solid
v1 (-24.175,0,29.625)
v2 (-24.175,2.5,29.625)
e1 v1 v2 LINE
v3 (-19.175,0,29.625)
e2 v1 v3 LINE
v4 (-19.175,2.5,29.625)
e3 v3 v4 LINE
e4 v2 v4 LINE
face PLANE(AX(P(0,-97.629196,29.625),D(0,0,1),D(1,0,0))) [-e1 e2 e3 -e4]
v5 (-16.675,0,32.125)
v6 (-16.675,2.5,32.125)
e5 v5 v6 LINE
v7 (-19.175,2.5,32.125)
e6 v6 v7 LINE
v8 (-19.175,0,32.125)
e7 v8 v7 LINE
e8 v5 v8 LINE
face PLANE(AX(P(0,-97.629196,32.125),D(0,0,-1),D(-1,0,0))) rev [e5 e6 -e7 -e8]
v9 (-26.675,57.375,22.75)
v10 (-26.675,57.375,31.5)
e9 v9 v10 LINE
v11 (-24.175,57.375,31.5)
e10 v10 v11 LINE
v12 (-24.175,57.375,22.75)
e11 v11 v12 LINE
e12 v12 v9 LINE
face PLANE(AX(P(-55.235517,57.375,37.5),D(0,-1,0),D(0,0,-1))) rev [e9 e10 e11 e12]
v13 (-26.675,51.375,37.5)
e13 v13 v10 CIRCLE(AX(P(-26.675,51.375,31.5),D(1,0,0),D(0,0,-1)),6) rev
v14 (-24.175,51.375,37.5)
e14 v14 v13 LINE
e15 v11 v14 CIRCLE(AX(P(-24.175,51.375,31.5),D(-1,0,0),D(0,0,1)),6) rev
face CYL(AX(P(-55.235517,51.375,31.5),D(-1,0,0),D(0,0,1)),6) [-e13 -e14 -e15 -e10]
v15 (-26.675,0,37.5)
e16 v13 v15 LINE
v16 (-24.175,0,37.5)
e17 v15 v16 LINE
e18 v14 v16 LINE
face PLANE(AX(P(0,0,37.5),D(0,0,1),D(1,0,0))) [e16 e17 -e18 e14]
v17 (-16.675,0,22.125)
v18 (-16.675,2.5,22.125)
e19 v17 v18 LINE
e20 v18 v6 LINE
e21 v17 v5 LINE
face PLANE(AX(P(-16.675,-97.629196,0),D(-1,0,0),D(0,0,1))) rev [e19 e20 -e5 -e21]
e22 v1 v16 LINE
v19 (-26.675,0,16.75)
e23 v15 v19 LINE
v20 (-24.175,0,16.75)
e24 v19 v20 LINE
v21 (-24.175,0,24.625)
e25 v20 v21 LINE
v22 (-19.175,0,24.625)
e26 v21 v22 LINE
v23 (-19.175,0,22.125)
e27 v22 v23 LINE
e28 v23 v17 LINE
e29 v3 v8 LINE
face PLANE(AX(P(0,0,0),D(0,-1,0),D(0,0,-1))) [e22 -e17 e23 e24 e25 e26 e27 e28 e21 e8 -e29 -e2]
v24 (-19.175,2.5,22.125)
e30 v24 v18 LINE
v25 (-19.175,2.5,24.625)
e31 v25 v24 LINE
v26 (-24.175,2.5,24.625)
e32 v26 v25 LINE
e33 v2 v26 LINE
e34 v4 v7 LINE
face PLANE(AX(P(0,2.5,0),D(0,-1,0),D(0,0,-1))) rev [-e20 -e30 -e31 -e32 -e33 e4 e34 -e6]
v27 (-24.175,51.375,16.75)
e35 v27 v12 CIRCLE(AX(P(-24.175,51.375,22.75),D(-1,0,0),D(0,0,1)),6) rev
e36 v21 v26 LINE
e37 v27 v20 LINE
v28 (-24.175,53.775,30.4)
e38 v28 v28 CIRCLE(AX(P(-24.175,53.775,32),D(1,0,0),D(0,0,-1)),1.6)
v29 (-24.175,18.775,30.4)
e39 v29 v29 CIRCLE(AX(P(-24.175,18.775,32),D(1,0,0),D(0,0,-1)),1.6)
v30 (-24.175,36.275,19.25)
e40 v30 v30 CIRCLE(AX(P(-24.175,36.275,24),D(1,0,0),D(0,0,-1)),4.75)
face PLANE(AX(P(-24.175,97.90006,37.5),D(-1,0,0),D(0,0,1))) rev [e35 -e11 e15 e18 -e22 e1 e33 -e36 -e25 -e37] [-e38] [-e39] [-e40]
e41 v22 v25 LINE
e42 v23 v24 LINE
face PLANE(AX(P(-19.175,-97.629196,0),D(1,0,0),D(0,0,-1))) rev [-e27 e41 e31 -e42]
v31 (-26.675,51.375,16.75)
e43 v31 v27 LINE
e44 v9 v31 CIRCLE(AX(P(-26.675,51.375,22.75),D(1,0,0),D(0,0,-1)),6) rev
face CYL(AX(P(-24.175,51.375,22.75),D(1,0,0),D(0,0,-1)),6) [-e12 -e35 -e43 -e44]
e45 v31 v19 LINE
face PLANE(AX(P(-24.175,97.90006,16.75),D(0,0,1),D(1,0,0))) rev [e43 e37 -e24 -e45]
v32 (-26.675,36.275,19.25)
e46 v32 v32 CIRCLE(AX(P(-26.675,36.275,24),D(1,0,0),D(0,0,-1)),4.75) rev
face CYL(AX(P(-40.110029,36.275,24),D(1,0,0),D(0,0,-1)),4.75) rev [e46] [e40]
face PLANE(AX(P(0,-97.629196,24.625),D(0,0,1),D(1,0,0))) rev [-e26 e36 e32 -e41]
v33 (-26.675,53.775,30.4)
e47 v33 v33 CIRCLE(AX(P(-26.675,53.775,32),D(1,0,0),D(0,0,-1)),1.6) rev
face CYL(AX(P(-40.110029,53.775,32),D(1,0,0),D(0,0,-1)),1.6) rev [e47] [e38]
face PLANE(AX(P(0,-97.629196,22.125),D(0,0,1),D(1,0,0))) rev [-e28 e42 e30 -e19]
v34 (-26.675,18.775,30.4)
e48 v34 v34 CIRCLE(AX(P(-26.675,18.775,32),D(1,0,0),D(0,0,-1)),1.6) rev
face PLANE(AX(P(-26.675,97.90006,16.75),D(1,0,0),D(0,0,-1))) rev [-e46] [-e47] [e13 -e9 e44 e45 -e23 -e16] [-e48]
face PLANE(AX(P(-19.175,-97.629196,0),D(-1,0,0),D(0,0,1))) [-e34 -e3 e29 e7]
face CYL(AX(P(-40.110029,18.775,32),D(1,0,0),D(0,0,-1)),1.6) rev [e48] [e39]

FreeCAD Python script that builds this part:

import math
import FreeCAD as App
import Part
import Sketcher
Q = App.Units.Quantity


def edges_at(feature, points):
    """Names of the edges that pass closest to the given points."""
    edges = feature.Shape.Edges
    near = lambda p: min(range(len(edges)), key=lambda i: edges[i].distToShape(Part.Vertex(*p))[0])
    return sorted({f"Edge{near(p) + 1}" for p in points})


def add_polygon(sketch, points):
    """Adds a closed chain of lines whose ends are joined by coincident constraints."""
    first, n = sketch.GeometryCount, len(points)
    for a, b in zip(points, points[1:] + points[:1]):
        sketch.addGeometry(Part.LineSegment(App.Vector(*a, 0), App.Vector(*b, 0)), False)
    for i in range(n):
        sketch.addConstraint(Sketcher.Constraint("Coincident", first + i, 2, first + (i + 1) % n, 1))

doc = App.newDocument("Part")
body = doc.addObject("PartDesign::Body", "Body")

# Sketch on XZ plane
sketch1 = body.newObject("Sketcher::SketchObject", "Sketch")
sketch1.AttachmentSupport = (doc.getObject("XZ_Plane"), [""])
sketch1.MapMode = "FlatFace"
add_polygon(sketch1, [(-40, -30), (-40, 30), (40, 30), (40, -30)])  # lines 0-3
sketch1.addConstraint([
    Sketcher.Constraint("Vertical", 0),
    Sketcher.Constraint("Horizontal", 1),
    Sketcher.Constraint("Vertical", 2),
    Sketcher.Constraint("Horizontal", 3),
    Sketcher.Constraint("Symmetric", 0, 2, 2, 2, -1, 1),
    Sketcher.Constraint("DistanceX", 1, 1, 1, 2, Q("80 mm")),
    Sketcher.Constraint("DistanceY", 0, 1, 0, 2, Q("60 mm")),
])
pad1 = body.newObject("PartDesign::Pad", "Pad")
pad1.Profile = sketch1
pad1.Length = 2.5
pad1.Reversed = True

# Sketch on XZ plane
sketch2 = body.newObject("Sketcher::SketchObject", "Sketch001")
sketch2.AttachmentSupport = (doc.getObject("XZ_Plane"), [""])
sketch2.MapMode = "FlatFace"
add_polygon(sketch2, [(16.2, 18), (-6.2, 18), (-6.2, 30), (16.2, 30)])  # lines 0-3
sketch2.addGeometry(Part.Circle(App.Vector(-8.6, 24, 0), App.Vector(0, 0, 1), 1.6), False)  # 4
sketch2.addGeometry(Part.Circle(App.Vector(18.6, 24, 0), App.Vector(0, 0, 1), 1.6), False)  # 5
sketch2.addConstraint([
    Sketcher.Constraint("Horizontal", 0),
    Sketcher.Constraint("Vertical", 1),
    Sketcher.Constraint("Horizontal", 2),
    Sketcher.Constraint("Vertical", 3),
    Sketcher.Constraint("Equal", 4, 5),
    Sketcher.Constraint("Horizontal", 4, 3, 5, 3),
    Sketcher.Constraint("Diameter", 4, Q("3.2 mm")),
    Sketcher.Constraint("DistanceY", 1, 1, 1, 2, Q("12 mm")),
    Sketcher.Constraint("DistanceX", 0, 2, 0, 1, Q("22.5 mm")),
    Sketcher.Constraint("DistanceY", -1, 1, 4, 3, Q("24 mm")),
    Sketcher.Constraint("DistanceY", -1, 1, 0, 2, Q("18 mm")),
    Sketcher.Constraint("DistanceX", 0, 2, -1, 1, Q("6.25 mm")),
    Sketcher.Constraint("DistanceX", 4, 3, 5, 3, Q("27.25 mm")),
    Sketcher.Constraint("DistanceX", 4, 3, -1, 1, Q("8.625 mm")),
])
pocket1 = body.newObject("PartDesign::Pocket", "Pocket")
pocket1.Profile = sketch2
pocket1.Type = "ThroughAll"
pocket1.Midplane = True

# Sketch on XZ plane
sketch3 = body.newObject("Sketcher::SketchObject", "Sketch002")
sketch3.AttachmentSupport = (doc.getObject("XZ_Plane"), [""])
sketch3.MapMode = "FlatFace"
sketch3.AttachmentOffset = App.Placement(App.Vector(0, 0, -2.5), App.Rotation())
add_polygon(sketch3, [(-40, 9.5), (-40, 30), (-37.5, 30), (-37.5, 9.5)])  # lines 0-3
sketch3.addConstraint([
    Sketcher.Constraint("Vertical", 0),
    Sketcher.Constraint("Horizontal", 1),
    Sketcher.Constraint("Vertical", 2),
    Sketcher.Constraint("Horizontal", 3),
    Sketcher.Constraint("DistanceX", 1, 1, 1, 2, Q("2.5 mm")),
    Sketcher.Constraint("DistanceY", 0, 1, 0, 2, Q("20.5 mm")),
    Sketcher.Constraint("DistanceX", 0, 2, -1, 1, Q("40 mm")),
    Sketcher.Constraint("DistanceY", -1, 1, 0, 2, Q("30 mm")),
])
pad2 = body.newObject("PartDesign::Pad", "Pad001")
pad2.Profile = sketch3
pad2.Length = 66.5
pad2.Reversed = True

# Sketch on XZ plane
sketch4 = body.newObject("Sketcher::SketchObject", "Sketch003")
sketch4.AttachmentSupport = (doc.getObject("XZ_Plane"), [""])
sketch4.MapMode = "FlatFace"
sketch4.AttachmentOffset = App.Placement(App.Vector(0, 0, -2.5), App.Rotation())
add_polygon(sketch4, [(-40, 30), (-40, 36), (40, 36), (40, 30)])  # lines 0-3
sketch4.addConstraint([
    Sketcher.Constraint("Vertical", 0),
    Sketcher.Constraint("Horizontal", 1),
    Sketcher.Constraint("Vertical", 2),
    Sketcher.Constraint("Horizontal", 3),
    Sketcher.Constraint("DistanceX", 1, 1, 1, 2, Q("80 mm")),
    Sketcher.Constraint("DistanceY", 0, 1, 0, 2, Q("5.5 mm")),
    Sketcher.Constraint("DistanceX", 0, 2, -1, 1, Q("40 mm")),
    Sketcher.Constraint("DistanceY", -1, 1, 2, 2, Q("30 mm")),
])
pad3 = body.newObject("PartDesign::Pad", "Pad002")
pad3.Profile = sketch4
pad3.Length = 2.5

# Sketch on XZ plane
sketch5 = body.newObject("Sketcher::SketchObject", "Sketch004")
sketch5.AttachmentSupport = (doc.getObject("XZ_Plane"), [""])
sketch5.MapMode = "FlatFace"
sketch5.AttachmentOffset = App.Placement(App.Vector(0, 0, -2.5), App.Rotation())
add_polygon(sketch5, [(-40, 30), (-40, 35.5), (-37.5, 35.5), (-37.5, 30)])  # lines 0-3
sketch5.addConstraint([
    Sketcher.Constraint("Vertical", 0),
    Sketcher.Constraint("Horizontal", 1),
    Sketcher.Constraint("Vertical", 2),
    Sketcher.Constraint("Horizontal", 3),
    Sketcher.Constraint("DistanceX", 1, 1, 1, 2, Q("2.5 mm")),
    Sketcher.Constraint("DistanceY", 0, 1, 0, 2, Q("5.5 mm")),
    Sketcher.Constraint("DistanceX", 0, 2, -1, 1, Q("40 mm")),
    Sketcher.Constraint("DistanceY", -1, 1, 2, 2, Q("30 mm")),
])
pad4 = body.newObject("PartDesign::Pad", "Pad003")
pad4.Profile = sketch5
pad4.Length = 66.5
pad4.Reversed = True

# Sketch on XZ plane
sketch6 = body.newObject("Sketcher::SketchObject", "Sketch005")
sketch6.AttachmentSupport = (doc.getObject("XZ_Plane"), [""])
sketch6.MapMode = "FlatFace"
sketch6.AttachmentOffset = App.Placement(App.Vector(0, 0, -69), App.Rotation())
add_polygon(sketch6, [(-40, 9.5), (-40, 15), (-37.5, 15), (-37.5, 9.5)])  # lines 0-3
sketch6.addConstraint([
    Sketcher.Constraint("Vertical", 0),
    Sketcher.Constraint("Horizontal", 1),
    Sketcher.Constraint("Vertical", 2),
    Sketcher.Constraint("Horizontal", 3),
    Sketcher.Constraint("DistanceX", 1, 1, 1, 2, Q("2.5 mm")),
    Sketcher.Constraint("DistanceY", 0, 1, 0, 2, Q("5.5 mm")),
    Sketcher.Constraint("DistanceX", 0, 2, -1, 1, Q("40 mm")),
    Sketcher.Constraint("DistanceY", -1, 1, 0, 2, Q("15 mm")),
])
pocket2 = body.newObject("PartDesign::Pocket", "Pocket001")
pocket2.Profile = sketch6
pocket2.Length = 66.5
pocket2.Reversed = True

# Sketch on XZ plane
sketch7 = body.newObject("Sketcher::SketchObject", "Sketch006")
sketch7.AttachmentSupport = (doc.getObject("XZ_Plane"), [""])
sketch7.MapMode = "FlatFace"
sketch7.AttachmentOffset = App.Placement(App.Vector(0, 0, -2.5), App.Rotation())
add_polygon(sketch7, [(-40, 12.5), (-40, 15), (-37.5, 15), (-37.5, 12.5)])  # lines 0-3
sketch7.addConstraint([
    Sketcher.Constraint("Vertical", 0),
    Sketcher.Constraint("Horizontal", 1),
    Sketcher.Constraint("Vertical", 2),
    Sketcher.Constraint("Horizontal", 3),
    Sketcher.Constraint("Equal", 3, 0),
    Sketcher.Constraint("DistanceX", 1, 1, 1, 2, Q("2.5 mm")),
    Sketcher.Constraint("DistanceX", 0, 2, -1, 1, Q("40 mm")),
    Sketcher.Constraint("DistanceY", -1, 1, 0, 2, Q("15 mm")),
])
pad5 = body.newObject("PartDesign::Pad", "Pad004")
pad5.Profile = sketch7
pad5.Length = 66.5
pad5.Reversed = True

# Sketch on YZ plane
sketch8 = body.newObject("Sketcher::SketchObject", "Sketch007")
sketch8.AttachmentSupport = (doc.getObject("YZ_Plane"), [""])
sketch8.MapMode = "FlatFace"
sketch8.AttachmentOffset = App.Placement(App.Vector(0, 0, -37.5), App.Rotation())
sketch8.addGeometry(Part.Circle(App.Vector(54, 24, 0), App.Vector(0, 0, 1), 4.8), False)
sketch8.addConstraint([
    Sketcher.Constraint("Diameter", 0, Q("9.5 mm")),
    Sketcher.Constraint("DistanceX", -1, 1, 0, 3, Q("54 mm")),
    Sketcher.Constraint("DistanceY", -1, 1, 0, 3, Q("24 mm")),
])
pocket3 = body.newObject("PartDesign::Pocket", "Pocket002")
pocket3.Profile = sketch8
pocket3.Length = 2.5

# Sketch on XZ plane
sketch9 = body.newObject("Sketcher::SketchObject", "Sketch008")
sketch9.AttachmentSupport = (doc.getObject("XZ_Plane"), [""])
sketch9.MapMode = "FlatFace"
sketch9.AttachmentOffset = App.Placement(App.Vector(0, 0, -69), App.Rotation())
add_polygon(sketch9, [(-40, 12.5), (-40, 35.5), (-37.5, 35.5), (-37.5, 12.5)])  # lines 0-3
sketch9.addConstraint([
    Sketcher.Constraint("Vertical", 0),
    Sketcher.Constraint("Horizontal", 1),
    Sketcher.Constraint("Vertical", 2),
    Sketcher.Constraint("Horizontal", 3),
    Sketcher.Constraint("DistanceY", 0, 1, 0, 2, Q("23 mm")),
    Sketcher.Constraint("DistanceX", 1, 1, 1, 2, Q("2.5 mm")),
    Sketcher.Constraint("DistanceX", 0, 2, -1, 1, Q("40 mm")),
    Sketcher.Constraint("DistanceY", -1, 1, 0, 2, Q("35.5 mm")),
])
pad6 = body.newObject("PartDesign::Pad", "Pad005")
pad6.Profile = sketch9
pad6.Length = 8
pad6.Reversed = True

# Sketch on XY plane
sketch10 = body.newObject("Sketcher::SketchObject", "Sketch009")
sketch10.AttachmentSupport = (doc.getObject("XY_Plane"), [""])
sketch10.MapMode = "FlatFace"
sketch10.AttachmentOffset = App.Placement(App.Vector(0, 0, 35.5), App.Rotation())
add_polygon(sketch10, [(-40, 77), (-40, 2.5), (-37.5, 2.5), (-37.5, 77)])  # lines 0-3
sketch10.addConstraint([
    Sketcher.Constraint("Vertical", 0),
    Sketcher.Constraint("Horizontal", 1),
    Sketcher.Constraint("Vertical", 2),
    Sketcher.Constraint("Horizontal", 3),
    Sketcher.Constraint("DistanceX", 1, 1, 1, 2, Q("2.5 mm")),
    Sketcher.Constraint("DistanceY", 0, 2, 0, 1, Q("74.5 mm")),
    Sketcher.Constraint("DistanceX", 0, 2, -1, 1, Q("40 mm")),
    Sketcher.Constraint("DistanceY", -1, 1, 2, 2, Q("77 mm")),
])
pad7 = body.newObject("PartDesign::Pad", "Pad006")
pad7.Profile = sketch10
pad7.Length = 2

# Sketch on YZ plane
sketch11 = body.newObject("Sketcher::SketchObject", "Sketch010")
sketch11.AttachmentSupport = (doc.getObject("YZ_Plane"), [""])
sketch11.MapMode = "FlatFace"
sketch11.AttachmentOffset = App.Placement(App.Vector(0, 0, -40), App.Rotation())
sketch11.addGeometry([
    Part.Circle(App.Vector(36.5, 32, 0), App.Vector(0, 0, 1), 1.6),
    Part.Circle(App.Vector(71.5, 32, 0), App.Vector(0, 0, 1), 1.6),
], False)
sketch11.addConstraint([
    Sketcher.Constraint("Equal", 0, 1),
    Sketcher.Constraint("Horizontal", 0, 3, 1, 3),
    Sketcher.Constraint("Diameter", 0, Q("3.2 mm")),
    Sketcher.Constraint("DistanceY", -1, 1, 0, 3, Q("32 mm")),
    Sketcher.Constraint("DistanceX", 0, 3, 1, 3, Q("35 mm")),
    Sketcher.Constraint("DistanceX", -1, 1, 0, 3, Q("36.5 mm")),
])
pocket4 = body.newObject("PartDesign::Pocket", "Pocket003")
pocket4.Profile = sketch11
pocket4.Length = 2.5
pocket4.Reversed = True

# Sketch on XY plane
sketch12 = body.newObject("Sketcher::SketchObject", "Sketch011")
sketch12.AttachmentSupport = (doc.getObject("XY_Plane"), [""])
sketch12.MapMode = "FlatFace"
sketch12.AttachmentOffset = App.Placement(App.Vector(0, 0, 35.5), App.Rotation())
add_polygon(sketch12, [(-40, 2.5), (-40, 0), (40, 0), (40, 2.5)])  # lines 0-3
sketch12.addConstraint([
    Sketcher.Constraint("Vertical", 0),
    Sketcher.Constraint("Horizontal", 1),
    Sketcher.Constraint("Vertical", 2),
    Sketcher.Constraint("Horizontal", 3),
    Sketcher.Constraint("Symmetric", 0, 2, 1, 2, -1, 1),
    Sketcher.Constraint("DistanceX", 1, 1, 1, 2, Q("80 mm")),
    Sketcher.Constraint("DistanceY", 0, 2, 0, 1, Q("2.5 mm")),
])
pad8 = body.newObject("PartDesign::Pad", "Pad007")
pad8.Profile = sketch12
pad8.Length = 2

# Sketch on YZ plane
sketch13 = body.newObject("Sketcher::SketchObject", "Sketch012")
sketch13.AttachmentSupport = (doc.getObject("YZ_Plane"), [""])
sketch13.MapMode = "FlatFace"
sketch13.AttachmentOffset = App.Placement(App.Vector(0, 0, -37.5), App.Rotation())
add_polygon(sketch13, [(77, 16.8), (2.5, 16.8), (2.5, 12.5), (77, 12.5)])  # lines 0-3
sketch13.addConstraint([
    Sketcher.Constraint("Horizontal", 0),
    Sketcher.Constraint("Vertical", 1),
    Sketcher.Constraint("Horizontal", 2),
    Sketcher.Constraint("Vertical", 3),
    Sketcher.Constraint("DistanceX", 0, 2, 0, 1, Q("74.5 mm")),
    Sketcher.Constraint("DistanceX", -1, 1, 2, 2, Q("77 mm")),
    Sketcher.Constraint("DistanceY", 1, 2, 1, 1, Q("4.25 mm")),
    Sketcher.Constraint("DistanceY", -1, 1, 1, 2, Q("12.5 mm")),
])
pocket5 = body.newObject("PartDesign::Pocket", "Pocket004")
pocket5.Profile = sketch13
pocket5.Length = 2.5
doc.recompute()

fillet = body.newObject("PartDesign::Fillet", "Fillet")
fillet.Base = (pocket5, edges_at(pocket5, [(-38.75, 77, 37.5), (-38.75, 77, 16.75)]))
fillet.Radius = 5

# Sketch on XZ plane
sketch14 = body.newObject("Sketcher::SketchObject", "Sketch013")
sketch14.AttachmentSupport = (doc.getObject("XZ_Plane"), [""])
sketch14.MapMode = "FlatFace"
sketch14.AttachmentOffset = App.Placement(App.Vector(0, 0, -2.5), App.Rotation())
add_polygon(sketch14, [(40, -30), (40, 38), (55, 38), (55, -30)])  # lines 0-3
sketch14.addConstraint([
    Sketcher.Constraint("Vertical", 0),
    Sketcher.Constraint("Horizontal", 1),
    Sketcher.Constraint("Vertical", 2),
    Sketcher.Constraint("Horizontal", 3),
    Sketcher.Constraint("DistanceY", 0, 1, 0, 2, Q("67.5 mm")),
    Sketcher.Constraint("DistanceX", -1, 1, 0, 2, Q("40 mm")),
    Sketcher.Constraint("DistanceY", 2, 2, -1, 1, Q("30 mm")),
    Sketcher.Constraint("DistanceX", 1, 1, 1, 2, Q("15.225 mm")),
])
pad9 = body.newObject("PartDesign::Pad", "Pad008")
pad9.Profile = sketch14
pad9.Length = 2.5

# Sketch on XZ plane
sketch15 = body.newObject("Sketcher::SketchObject", "Sketch014")
sketch15.AttachmentSupport = (doc.getObject("XZ_Plane"), [""])
sketch15.MapMode = "FlatFace"
sketch15.AttachmentOffset = App.Placement(App.Vector(0, 0, -2.5), App.Rotation())
add_polygon(sketch15, [(-40, -30), (-40, -20), (55, -20), (55, -30)])  # lines 0-3
sketch15.addConstraint([
    Sketcher.Constraint("Vertical", 0),
    Sketcher.Constraint("Horizontal", 1),
    Sketcher.Constraint("Vertical", 2),
    Sketcher.Constraint("Horizontal", 3),
    Sketcher.Constraint("DistanceY", 0, 1, 0, 2, Q("10 mm")),
    Sketcher.Constraint("DistanceX", 0, 2, -1, 1, Q("40 mm")),
    Sketcher.Constraint("DistanceY", 0, 2, -1, 1, Q("20 mm")),
    Sketcher.Constraint("DistanceX", 1, 1, 1, 2, Q("95.225 mm")),
])
pocket6 = body.newObject("PartDesign::Pocket", "Pocket005")
pocket6.Profile = sketch15
pocket6.Type = "ThroughAll"
pocket6.Reversed = True

# Sketch on XZ plane
sketch16 = body.newObject("Sketcher::SketchObject", "Sketch015")
sketch16.AttachmentSupport = (doc.getObject("XZ_Plane"), [""])
sketch16.MapMode = "FlatFace"
sketch16.AttachmentOffset = App.Placement(App.Vector(0, 0, -2.5), App.Rotation())
add_polygon(sketch16, [(-26.7, 16.8), (-26.7, 37.5), (-24.2, 37.5), (-24.2, 16.8)])  # lines 0-3
sketch16.addConstraint([
    Sketcher.Constraint("Vertical", 0),
    Sketcher.Constraint("Horizontal", 1),
    Sketcher.Constraint("Vertical", 2),
    Sketcher.Constraint("Horizontal", 3),
    Sketcher.Constraint("DistanceX", 1, 1, 1, 2, Q("2.5 mm")),
    Sketcher.Constraint("DistanceY", 0, 1, 0, 2, Q("20.75 mm")),
    Sketcher.Constraint("DistanceY", -1, 1, 0, 2, Q("37.5 mm")),
    Sketcher.Constraint("DistanceX", 0, 2, -1, 1, Q("26.675 mm")),
])
pad10 = body.newObject("PartDesign::Pad", "Pad009")
pad10.Profile = sketch16
pad10.Length = 74.5
pad10.Reversed = True

# Sketch on YZ plane
sketch17 = body.newObject("Sketcher::SketchObject", "Sketch016")
sketch17.AttachmentSupport = (doc.getObject("YZ_Plane"), [""])
sketch17.MapMode = "FlatFace"
sketch17.AttachmentOffset = App.Placement(App.Vector(0, 0, -24.175), App.Rotation())
sketch17.addGeometry([
    Part.ArcOfCircle(Part.Circle(App.Vector(36.3, 24, 0), App.Vector(0, 0, 1), 4.7), math.radians(90), math.radians(180)),  # 0
    Part.ArcOfCircle(Part.Circle(App.Vector(36.3, 24, 0), App.Vector(0, 0, 1), 4.7), math.radians(180), math.radians(270)),  # 1
    Part.ArcOfCircle(Part.Circle(App.Vector(36.3, 24, 0), App.Vector(0, 0, 1), 4.8), math.radians(-90), math.radians(90)),  # 2
    Part.Circle(App.Vector(18.8, 32, 0), App.Vector(0, 0, 1), 1.6),  # 3
    Part.Circle(App.Vector(53.8, 32, 0), App.Vector(0, 0, 1), 1.6),  # 4
], False)
sketch17.addConstraint([
    Sketcher.Constraint("Tangent", 0, 2, 1, 1),
    Sketcher.Constraint("Tangent", 1, 2, 2, 1),
    Sketcher.Constraint("Tangent", 2, 2, 0, 1),
    Sketcher.Constraint("Equal", 3, 4),
    Sketcher.Constraint("Horizontal", 3, 3, 4, 3),
    Sketcher.Constraint("Horizontal", 2, 3, 0, 2),
    Sketcher.Constraint("Vertical", 2, 3, 1, 2),
    Sketcher.Constraint("Vertical", 1, 2, 2, 2),
    Sketcher.Constraint("Diameter", 3, Q("3.2 mm")),
    Sketcher.Constraint("Radius", 0, Q("4.75 mm")),
    Sketcher.Constraint("DistanceY", -1, 1, 0, 3, Q("24 mm")),
    Sketcher.Constraint("DistanceY", -1, 1, 3, 3, Q("32 mm")),
    Sketcher.Constraint("DistanceX", 3, 3, 4, 3, Q("35 mm")),
    Sketcher.Constraint("DistanceX", 3, 3, 0, 3, Q("17.5 mm")),
    Sketcher.Constraint("DistanceX", -1, 1, 0, 3, Q("36.275 mm")),
])
pocket7 = body.newObject("PartDesign::Pocket", "Pocket006")
pocket7.Profile = sketch17
pocket7.Length = 2.5

# Sketch on XZ plane
sketch18 = body.newObject("Sketcher::SketchObject", "Sketch017")
sketch18.AttachmentSupport = (doc.getObject("XZ_Plane"), [""])
sketch18.MapMode = "FlatFace"
sketch18.AttachmentOffset = App.Placement(App.Vector(0, 0, -77), App.Rotation())
add_polygon(sketch18, [(-40, 16.8), (-40, 37.5), (-37.5, 37.5), (-37.5, 16.8)])  # lines 0-3
sketch18.addConstraint([
    Sketcher.Constraint("Vertical", 0),
    Sketcher.Constraint("Horizontal", 1),
    Sketcher.Constraint("Vertical", 2),
    Sketcher.Constraint("Horizontal", 3),
    Sketcher.Constraint("DistanceX", 1, 1, 1, 2, Q("2.5 mm")),
    Sketcher.Constraint("DistanceX", 0, 2, -1, 1, Q("40 mm")),
    Sketcher.Constraint("DistanceY", 0, 1, 0, 2, Q("20.75 mm")),
    Sketcher.Constraint("DistanceY", -1, 1, 0, 2, Q("37.5 mm")),
])
pocket8 = body.newObject("PartDesign::Pocket", "Pocket007")
pocket8.Profile = sketch18
pocket8.Length = 74.5
pocket8.Reversed = True

# Sketch on YZ plane
sketch19 = body.newObject("Sketcher::SketchObject", "Sketch018")
sketch19.AttachmentSupport = (doc.getObject("YZ_Plane"), [""])
sketch19.MapMode = "FlatFace"
sketch19.AttachmentOffset = App.Placement(App.Vector(0, 0, -24.175), App.Rotation())
add_polygon(sketch19, [(77, 38), (57, 38), (57, 17), (77, 17)])  # lines 0-3
sketch19.addConstraint([
    Sketcher.Constraint("Horizontal", 0),
    Sketcher.Constraint("Vertical", 1),
    Sketcher.Constraint("Horizontal", 2),
    Sketcher.Constraint("Vertical", 3),
    Sketcher.Constraint("DistanceX", -1, 1, 2, 2, Q("77 mm")),
    Sketcher.Constraint("DistanceY", 1, 2, 1, 1, Q("20.75 mm")),
    Sketcher.Constraint("DistanceY", -1, 1, 0, 2, Q("37.5 mm")),
    Sketcher.Constraint("DistanceX", 0, 2, 0, 1, Q("19.625 mm")),
])
pocket9 = body.newObject("PartDesign::Pocket", "Pocket008")
pocket9.Profile = sketch19
pocket9.Length = 2.5
doc.recompute()

fillet2 = body.newObject("PartDesign::Fillet", "Fillet001")
fillet2.Base = (pocket9, edges_at(pocket9, [(-25.425, 57.375, 37.5), (-25.425, 57.375, 16.75)]))
fillet2.Radius = 6

# Sketch on XZ plane
sketch20 = body.newObject("Sketcher::SketchObject", "Sketch019")
sketch20.AttachmentSupport = (doc.getObject("XZ_Plane"), [""])
sketch20.MapMode = "FlatFace"
sketch20.AttachmentOffset = App.Placement(App.Vector(0, 0, -2.5), App.Rotation())
add_polygon(sketch20, [(-40, -20), (-40, 38), (-27, 38), (-27, -20)])  # lines 0-3
sketch20.addConstraint([
    Sketcher.Constraint("Vertical", 0),
    Sketcher.Constraint("Horizontal", 1),
    Sketcher.Constraint("Vertical", 2),
    Sketcher.Constraint("Horizontal", 3),
    Sketcher.Constraint("DistanceY", 0, 1, 0, 2, Q("57.5 mm")),
    Sketcher.Constraint("DistanceX", 0, 2, -1, 1, Q("40 mm")),
    Sketcher.Constraint("DistanceY", 2, 2, -1, 1, Q("20 mm")),
    Sketcher.Constraint("DistanceX", 1, 1, 1, 2, Q("13.325 mm")),
])
pocket10 = body.newObject("PartDesign::Pocket", "Pocket009")
pocket10.Profile = sketch20
pocket10.Length = 2.5
pocket10.Reversed = True

# Sketch on XZ plane
sketch21 = body.newObject("Sketcher::SketchObject", "Sketch020")
sketch21.AttachmentSupport = (doc.getObject("XZ_Plane"), [""])
sketch21.MapMode = "FlatFace"
sketch21.AttachmentOffset = App.Placement(App.Vector(0, 0, -2.5), App.Rotation())
add_polygon(sketch21, [(52.2, -20), (52.2, 37.5), (55.2, 37.5), (55.2, -20)])  # lines 0-3
sketch21.addConstraint([
    Sketcher.Constraint("Vertical", 0),
    Sketcher.Constraint("Horizontal", 1),
    Sketcher.Constraint("Vertical", 2),
    Sketcher.Constraint("Horizontal", 3),
    Sketcher.Constraint("DistanceX", 1, 1, 1, 2, Q("3 mm")),
    Sketcher.Constraint("DistanceY", 0, 1, 0, 2, Q("57.5 mm")),
    Sketcher.Constraint("DistanceY", 2, 2, -1, 1, Q("20 mm")),
    Sketcher.Constraint("DistanceX", -1, 1, 0, 2, Q("52.225 mm")),
])
pocket11 = body.newObject("PartDesign::Pocket", "Pocket010")
pocket11.Profile = sketch21
pocket11.Length = 2.5
pocket11.Reversed = True

# Sketch on XZ plane
sketch22 = body.newObject("Sketcher::SketchObject", "Sketch021")
sketch22.AttachmentSupport = (doc.getObject("XZ_Plane"), [""])
sketch22.MapMode = "FlatFace"
sketch22.AttachmentOffset = App.Placement(App.Vector(0, 0, -2.5), App.Rotation())
add_polygon(sketch22, [(-24.2, 16.8), (-24.2, 24.6), (-19.2, 24.6), (-19.2, 22.1), (-16.7, 22.1), (-16.7, 32.1), (-19.2, 32.1), (-19.2, 29.6), (-24.2, 29.6), (-24.2, 37.5), (52.2, 37.5), (52.2, -20), (-26.7, -20), (-26.7, 16.8)])  # lines 0-13
sketch22.addConstraint([
    Sketcher.Constraint("Vertical", 0),
    Sketcher.Constraint("Horizontal", 1),
    Sketcher.Constraint("Vertical", 2),
    Sketcher.Constraint("Horizontal", 3),
    Sketcher.Constraint("Vertical", 4),
    Sketcher.Constraint("Horizontal", 5),
    Sketcher.Constraint("Vertical", 6),
    Sketcher.Constraint("Horizontal", 7),
    Sketcher.Constraint("Vertical", 8),
    Sketcher.Constraint("Horizontal", 9),
    Sketcher.Constraint("Vertical", 10),
    Sketcher.Constraint("Horizontal", 11),
    Sketcher.Constraint("Vertical", 12),
    Sketcher.Constraint("Horizontal", 13),
    Sketcher.Constraint("Vertical", 2, 2, 5, 2),
    Sketcher.Constraint("Vertical", 0, 2, 7, 2),
    Sketcher.Constraint("Equal", 5, 13),
    Sketcher.Constraint("Equal", 13, 2),
    Sketcher.Constraint("Equal", 2, 6),
    Sketcher.Constraint("Equal", 0, 8),
    Sketcher.Constraint("DistanceX", 1, 1, 1, 2, Q("5 mm")),
    Sketcher.Constraint("DistanceY", 4, 1, 4, 2, Q("10 mm")),
    Sketcher.Constraint("DistanceX", 3, 1, 3, 2, Q("2.5 mm")),
    Sketcher.Constraint("DistanceX", 9, 1, 9, 2, Q("76.4 mm")),
    Sketcher.Constraint("DistanceY", 10, 2, 10, 1, Q("57.5 mm")),
    Sketcher.Constraint("DistanceY", 10, 2, -1, 1, Q("20 mm")),
    Sketcher.Constraint("DistanceY", 12, 1, 12, 2, Q("36.75 mm")),
    Sketcher.Constraint("DistanceX", 0, 2, -1, 1, Q("24.175 mm")),
])
pocket12 = body.newObject("PartDesign::Pocket", "Pocket011")
pocket12.Profile = sketch22
pocket12.Length = 2.5
pocket12.Reversed = True

doc.recompute()
